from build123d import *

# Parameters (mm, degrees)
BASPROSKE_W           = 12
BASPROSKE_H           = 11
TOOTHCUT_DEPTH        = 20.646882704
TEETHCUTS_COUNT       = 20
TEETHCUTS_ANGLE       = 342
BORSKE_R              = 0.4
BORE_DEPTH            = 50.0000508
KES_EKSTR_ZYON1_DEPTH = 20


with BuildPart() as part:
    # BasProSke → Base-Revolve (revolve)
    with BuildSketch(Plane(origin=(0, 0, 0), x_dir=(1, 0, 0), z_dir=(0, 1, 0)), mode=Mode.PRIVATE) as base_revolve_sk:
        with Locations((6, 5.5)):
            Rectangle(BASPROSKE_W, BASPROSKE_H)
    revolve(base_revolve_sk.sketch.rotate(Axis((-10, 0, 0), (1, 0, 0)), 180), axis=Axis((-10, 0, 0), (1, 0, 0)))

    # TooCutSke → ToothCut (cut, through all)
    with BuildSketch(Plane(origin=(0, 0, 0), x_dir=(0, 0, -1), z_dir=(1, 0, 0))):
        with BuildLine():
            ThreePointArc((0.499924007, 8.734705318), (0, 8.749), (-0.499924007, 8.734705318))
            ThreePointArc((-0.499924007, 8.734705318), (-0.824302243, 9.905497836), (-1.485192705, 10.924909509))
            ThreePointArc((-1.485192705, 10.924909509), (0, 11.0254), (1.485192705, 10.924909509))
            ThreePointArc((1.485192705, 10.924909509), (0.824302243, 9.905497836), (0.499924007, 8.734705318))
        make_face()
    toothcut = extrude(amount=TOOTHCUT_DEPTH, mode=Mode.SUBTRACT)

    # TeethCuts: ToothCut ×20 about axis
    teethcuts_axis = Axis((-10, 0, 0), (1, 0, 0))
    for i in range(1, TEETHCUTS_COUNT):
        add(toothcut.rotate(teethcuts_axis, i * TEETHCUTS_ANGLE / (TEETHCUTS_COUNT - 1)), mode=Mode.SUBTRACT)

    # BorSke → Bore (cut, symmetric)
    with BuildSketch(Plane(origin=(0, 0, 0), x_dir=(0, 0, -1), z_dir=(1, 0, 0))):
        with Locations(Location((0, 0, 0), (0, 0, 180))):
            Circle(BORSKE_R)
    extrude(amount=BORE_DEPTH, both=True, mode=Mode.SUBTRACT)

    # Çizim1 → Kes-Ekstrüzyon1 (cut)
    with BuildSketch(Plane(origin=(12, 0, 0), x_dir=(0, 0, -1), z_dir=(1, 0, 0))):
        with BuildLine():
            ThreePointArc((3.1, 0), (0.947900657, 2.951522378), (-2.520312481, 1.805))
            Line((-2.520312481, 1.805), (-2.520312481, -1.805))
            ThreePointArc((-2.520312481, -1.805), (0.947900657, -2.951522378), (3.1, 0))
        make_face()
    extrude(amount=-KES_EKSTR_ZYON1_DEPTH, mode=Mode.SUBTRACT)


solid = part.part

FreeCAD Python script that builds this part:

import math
import FreeCAD as App
import Part
import Sketcher

V = App.Vector
Q = App.Units.Quantity


def add_polygon(sketch, points):
    """Adds a closed chain of lines whose ends are joined by coincident constraints."""
    first, n = sketch.GeometryCount, len(points)
    for a, b in zip(points, points[1:] + points[:1]):
        sketch.addGeometry(Part.LineSegment(App.Vector(*a, 0), App.Vector(*b, 0)), False)
    for i in range(n):
        sketch.addConstraint(Sketcher.Constraint("Coincident", first + i, 2, first + (i + 1) % n, 1))

doc = App.newDocument("Part")
params = doc.addObject("Spreadsheet::Sheet", "Params")
for row, (alias, value) in enumerate([
    ("sketch1_width", "12 mm"),
    ("sketch1_height", "11 mm"),
    ("revolution_angle", "360 deg"),
    ("sketch2_radius", "4 mm"),
    ("sketch3_diameter", "0.8 mm"),
    ("pocket2_length", "100.000102 mm"),
    ("sketch4_radius", "3.1 mm"),
    ("sketch4_width", "3.61 mm"),
    ("pocket3_length", "20 mm"),
], start=1):
    params.set(f"A{row}", alias)
    params.set(f"B{row}", "=" + value)
    params.setAlias(f"B{row}", alias)

body = doc.addObject("PartDesign::Body", "Body")

# Sketch on XZ plane
sketch1 = body.newObject("Sketcher::SketchObject", "Sketch")
sketch1.AttachmentSupport = (doc.getObject("XZ_Plane"), [""])
sketch1.MapMode = "FlatFace"
add_polygon(sketch1, [(0, -11), (0, 0), (12, 0), (12, -11)])  # lines 0-3
sketch1.addConstraint([
    Sketcher.Constraint("Vertical", 0),
    Sketcher.Constraint("Horizontal", 1),
    Sketcher.Constraint("Vertical", 2),
    Sketcher.Constraint("Horizontal", 3),
    Sketcher.Constraint("Coincident", 0, 2, -1, 1),
    Sketcher.Constraint("DistanceX", 1, 1, 1, 2, Q("12 mm")),
    Sketcher.Constraint("DistanceY", 0, 1, 0, 2, Q("11 mm")),
])
sketch1.setExpression("Constraints[9]", "Params.sketch1_width")
sketch1.setExpression("Constraints[10]", "Params.sketch1_height")
revolution = body.newObject("PartDesign::Revolution", "Revolution")
revolution.Profile = sketch1
revolution.ReferenceAxis = (sketch1, ["H_Axis"])
revolution.setExpression("Angle", "Params.revolution_angle")

# Sketch on YZ plane
sketch2 = body.newObject("Sketcher::SketchObject", "Sketch001")
sketch2.AttachmentSupport = (doc.getObject("YZ_Plane"), [""])
sketch2.MapMode = "FlatFace"
sketch2.addGeometry([
    Part.ArcOfCircle(Part.Circle(V(0, 0, 0), V(0, 0, 1), 8.7), math.radians(-3.28), math.radians(3.28)),
    Part.ArcOfCircle(Part.Circle(V(8.3, -4.5, 0), V(0, 0, 1), 4), math.radians(48), math.radians(83)),
    Part.ArcOfCircle(Part.Circle(V(0, 0, 0), V(0, 0, 1), 11), math.radians(-7.74), math.radians(7.74)),
    Part.ArcOfCircle(Part.Circle(V(8.3, 4.5, 0), V(0, 0, 1), 4), math.radians(-83), math.radians(-48)),
], False)
sketch2.addConstraint([
    Sketcher.Constraint("Coincident", 0, 1, 1, 2),
    Sketcher.Constraint("Coincident", 1, 1, 2, 1),
    Sketcher.Constraint("Coincident", 2, 2, 3, 2),
    Sketcher.Constraint("Coincident", 3, 1, 0, 2),
    Sketcher.Constraint("Coincident", 0, 3, -1, 1),
    Sketcher.Constraint("Coincident", 2, 3, -1, 1),
    Sketcher.Constraint("Equal", 1, 3),
    Sketcher.Constraint("Symmetric", 1, 3, 3, 3, -1),
    Sketcher.Constraint("Radius", 1, Q("4 mm")),
    Sketcher.Constraint("Radius", 0, Q("8.749 mm")),
    Sketcher.Constraint("Radius", 2, Q("11.0254 mm")),
    Sketcher.Constraint("DistanceY", 1, 3, -1, 1, Q("4.47219 mm")),
    Sketcher.Constraint("DistanceX", -1, 1, 1, 1, Q("10.92491 mm")),
])
sketch2.setExpression("Constraints[8]", "Params.sketch2_radius")
pocket1 = body.newObject("PartDesign::Pocket", "Pocket")
pocket1.Profile = sketch2
pocket1.Type = "ThroughAll"
pocket1.Reversed = True
doc.recompute()

polarpattern = body.newObject("PartDesign::PolarPattern", "PolarPattern")
polarpattern.Originals = [pocket1]
polarpattern.Axis = (doc.getObject("X_Axis"), [""])
polarpattern.Angle = 360
polarpattern.Occurrences = 20
body.Tip = polarpattern

# Sketch on YZ plane
sketch3 = body.newObject("Sketcher::SketchObject", "Sketch002")
sketch3.AttachmentSupport = (doc.getObject("YZ_Plane"), [""])
sketch3.MapMode = "FlatFace"
sketch3.addGeometry(Part.Circle(V(0, 0, 0), V(0, 0, 1), 0.4), False)
sketch3.addConstraint([
    Sketcher.Constraint("Coincident", 0, 3, -1, 1),
    Sketcher.Constraint("Diameter", 0, Q("0.8 mm")),
])
sketch3.setExpression("Constraints[1]", "Params.sketch3_diameter")
pocket2 = body.newObject("PartDesign::Pocket", "Pocket001")
pocket2.Profile = sketch3
pocket2.setExpression("Length", "Params.pocket2_length")
pocket2.Midplane = True

# Sketch on YZ plane
sketch4 = body.newObject("Sketcher::SketchObject", "Sketch003")
sketch4.AttachmentSupport = (doc.getObject("YZ_Plane"), [""])
sketch4.MapMode = "FlatFace"
sketch4.AttachmentOffset = App.Placement(V(0, 0, 12), App.Rotation())
sketch4.addGeometry([
    Part.ArcOfCircle(Part.Circle(V(0, 0, 0), V(0, 0, 1), 3.1), math.radians(-90), math.radians(54)),
    Part.LineSegment(V(1.8, 2.5, 0), V(-1.8, 2.5, 0)),
    Part.ArcOfCircle(Part.Circle(V(0, 0, 0), V(0, 0, 1), 3.1), math.radians(126), math.radians(270)),
], False)
sketch4.addConstraint([
    Sketcher.Constraint("Coincident", 0, 2, 1, 1),
    Sketcher.Constraint("Coincident", 1, 2, 2, 1),
    Sketcher.Constraint("Tangent", 2, 2, 0, 1),
    Sketcher.Constraint("Horizontal", 1),
    Sketcher.Constraint("Coincident", 0, 3, -1, 1),
    Sketcher.Constraint("Equal", 0, 2),
    Sketcher.Constraint("PointOnObject", 2, 2, -2),
    Sketcher.Constraint("Radius", 0, Q("3.1 mm")),
    Sketcher.Constraint("DistanceX", 1, 2, 1, 1, Q("3.61 mm")),
])
sketch4.setExpression("Constraints[7]", "Params.sketch4_radius")
sketch4.setExpression("Constraints[8]", "Params.sketch4_width")
pocket3 = body.newObject("PartDesign::Pocket", "Pocket002")
pocket3.Profile = sketch4
pocket3.setExpression("Length", "Params.pocket3_length")

doc.recompute()
